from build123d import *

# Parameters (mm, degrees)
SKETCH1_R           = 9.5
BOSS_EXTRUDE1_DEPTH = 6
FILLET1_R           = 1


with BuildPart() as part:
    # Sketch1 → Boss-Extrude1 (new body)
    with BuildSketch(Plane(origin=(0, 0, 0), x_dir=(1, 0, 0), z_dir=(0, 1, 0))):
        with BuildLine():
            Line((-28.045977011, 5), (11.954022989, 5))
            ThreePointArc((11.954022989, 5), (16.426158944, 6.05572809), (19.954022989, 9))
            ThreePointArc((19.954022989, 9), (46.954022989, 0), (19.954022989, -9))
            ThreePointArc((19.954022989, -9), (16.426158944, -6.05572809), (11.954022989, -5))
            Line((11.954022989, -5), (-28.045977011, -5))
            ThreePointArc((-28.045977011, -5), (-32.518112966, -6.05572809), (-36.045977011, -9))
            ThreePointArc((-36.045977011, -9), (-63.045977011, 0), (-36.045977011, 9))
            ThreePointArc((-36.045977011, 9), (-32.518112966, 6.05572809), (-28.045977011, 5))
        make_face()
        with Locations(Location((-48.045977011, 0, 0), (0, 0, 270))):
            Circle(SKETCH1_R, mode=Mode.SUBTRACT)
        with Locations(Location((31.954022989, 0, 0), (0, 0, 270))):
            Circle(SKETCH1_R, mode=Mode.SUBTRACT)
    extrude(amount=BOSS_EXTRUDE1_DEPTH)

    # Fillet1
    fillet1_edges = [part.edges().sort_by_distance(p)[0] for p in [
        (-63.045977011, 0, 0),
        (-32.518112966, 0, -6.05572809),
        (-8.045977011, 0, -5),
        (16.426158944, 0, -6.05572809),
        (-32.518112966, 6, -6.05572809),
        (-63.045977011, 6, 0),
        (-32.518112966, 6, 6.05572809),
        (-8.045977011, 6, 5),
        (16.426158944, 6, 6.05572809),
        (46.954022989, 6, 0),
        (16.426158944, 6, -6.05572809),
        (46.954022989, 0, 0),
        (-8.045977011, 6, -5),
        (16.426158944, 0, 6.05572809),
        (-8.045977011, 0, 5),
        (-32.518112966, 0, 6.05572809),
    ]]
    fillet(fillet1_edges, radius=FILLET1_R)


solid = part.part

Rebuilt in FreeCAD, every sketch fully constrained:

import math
import FreeCAD as App
import Part
import Sketcher

V = App.Vector
Q = App.Units.Quantity


def edges_at(feature, points):
    """Names of the edges that pass closest to the given points."""
    edges = feature.Shape.Edges
    near = lambda p: min(range(len(edges)), key=lambda i: edges[i].distToShape(Part.Vertex(*p))[0])
    return sorted({f"Edge{near(p) + 1}" for p in points})

doc = App.newDocument("Part")
params = doc.addObject("Spreadsheet::Sheet", "Params")
for row, (alias, value) in enumerate([
    ("sketch1_diameter", "19 mm"),
    ("sketch1_radius", "10 mm"),
    ("sketch1_radius2", "15 mm"),
    ("sketch1_width", "40 mm"),
    ("pad1_length", "6 mm"),
    ("fillet_radius", "1 mm"),
], start=1):
    params.set(f"A{row}", alias)
    params.set(f"B{row}", "=" + value)
    params.setAlias(f"B{row}", alias)

body = doc.addObject("PartDesign::Body", "Body")

sketch1 = body.newObject("Sketcher::SketchObject", "Sketch")
sketch1.AttachmentSupport = (doc.getObject("XZ_Plane"), [""])
sketch1.MapMode = "FlatFace"
sketch1.addGeometry(Part.LineSegment(V(12, -5, 0), V(-28, -5, 0)), False)
sketch1.addGeometry(Part.ArcOfCircle(Part.Circle(V(-28, -15, 0), V(0, 0, 1), 10), math.radians(90), math.radians(143)), False)
sketch1.addGeometry(Part.ArcOfCircle(Part.Circle(V(-48, 0, 0), V(0, 0, 1), 15), math.radians(37), math.radians(323)), False)
sketch1.addGeometry(Part.ArcOfCircle(Part.Circle(V(-28, 15, 0), V(0, 0, 1), 10), math.radians(-143), math.radians(-90)), False)
sketch1.addGeometry(Part.LineSegment(V(-28, 5, 0), V(12, 5, 0)), False)
sketch1.addGeometry(Part.ArcOfCircle(Part.Circle(V(12, 15, 0), V(0, 0, 1), 10), math.radians(-90), math.radians(-37)), False)
sketch1.addGeometry(Part.ArcOfCircle(Part.Circle(V(32, 0, 0), V(0, 0, 1), 15), math.radians(-143), math.radians(143)), False)
sketch1.addGeometry(Part.ArcOfCircle(Part.Circle(V(12, -15, 0), V(0, 0, 1), 10), math.radians(37), math.radians(90)), False)
sketch1.addGeometry(Part.Circle(V(32, 0, 0), V(0, 0, 1), 10), False)
sketch1.addGeometry(Part.Circle(V(-48, 0, 0), V(0, 0, 1), 10), False)
sketch1.addConstraint(Sketcher.Constraint("Tangent", 0, 2, 1, 1))
sketch1.addConstraint(Sketcher.Constraint("Tangent", 1, 2, 2, 2))
sketch1.addConstraint(Sketcher.Constraint("Tangent", 2, 1, 3, 1))
sketch1.addConstraint(Sketcher.Constraint("Tangent", 3, 2, 4, 1))
sketch1.addConstraint(Sketcher.Constraint("Tangent", 4, 2, 5, 1))
sketch1.addConstraint(Sketcher.Constraint("Tangent", 5, 2, 6, 2))
sketch1.addConstraint(Sketcher.Constraint("Tangent", 6, 1, 7, 1))
sketch1.addConstraint(Sketcher.Constraint("Tangent", 7, 2, 0, 1))
sketch1.addConstraint(Sketcher.Constraint("Horizontal", 0))
sketch1.addConstraint(Sketcher.Constraint("Horizontal", 4))
sketch1.addConstraint(Sketcher.Constraint("Coincident", 8, 3, 6, 3))
sketch1.addConstraint(Sketcher.Constraint("Coincident", 9, 3, 2, 3))
sketch1.addConstraint(Sketcher.Constraint("Equal", 1, 3))
sketch1.addConstraint(Sketcher.Constraint("Equal", 3, 5))
sketch1.addConstraint(Sketcher.Constraint("Equal", 2, 6))
sketch1.addConstraint(Sketcher.Constraint("Equal", 5, 7))
sketch1.addConstraint(Sketcher.Constraint("Equal", 8, 9))
sketch1.addConstraint(Sketcher.Constraint("Symmetric", 1, 3, 3, 3, -1))
sketch1.addConstraint(Sketcher.Constraint("PointOnObject", 6, 3, -1))
sketch1.addConstraint(Sketcher.Constraint("Diameter", 8, Q("19 mm")))
sketch1.addConstraint(Sketcher.Constraint("Radius", 1, Q("10 mm")))
sketch1.addConstraint(Sketcher.Constraint("Radius", 2, Q("15 mm")))
sketch1.addConstraint(Sketcher.Constraint("DistanceX", 0, 2, 0, 1, Q("40 mm")))
sketch1.addConstraint(Sketcher.Constraint("DistanceY", 1, 3, -1, 1, Q("15 mm")))
sketch1.addConstraint(Sketcher.Constraint("DistanceX", 1, 3, -1, 1, Q("28.045977 mm")))
sketch1.setExpression("Constraints[19]", "Params.sketch1_diameter")
sketch1.setExpression("Constraints[20]", "Params.sketch1_radius")
sketch1.setExpression("Constraints[21]", "Params.sketch1_radius2")
sketch1.setExpression("Constraints[22]", "Params.sketch1_width")
pad1 = body.newObject("PartDesign::Pad", "Pad")
pad1.Profile = sketch1
pad1.setExpression("Length", "Params.pad1_length")
pad1.Reversed = True
doc.recompute()

fillet = body.newObject("PartDesign::Fillet", "Fillet")
fillet.Base = (pad1, edges_at(pad1, [
    (-63.046, 0, 0),
    (-32.518, 0, -6.056),
    (-8.046, 0, -5),
    (16.426, 0, -6.056),
    (-32.518, 6, -6.056),
    (-63.046, 6, 0),
    (-32.518, 6, 6.056),
    (-8.046, 6, 5),
    (16.426, 6, 6.056),
    (46.954, 6, 0),
    (16.426, 6, -6.056),
    (46.954, 0, 0),
    (-8.046, 6, -5),
    (16.426, 0, 6.056),
    (-8.046, 0, 5),
    (-32.518, 0, 6.056),
]))
fillet.setExpression("Radius", "Params.fillet_radius")

doc.recompute()
